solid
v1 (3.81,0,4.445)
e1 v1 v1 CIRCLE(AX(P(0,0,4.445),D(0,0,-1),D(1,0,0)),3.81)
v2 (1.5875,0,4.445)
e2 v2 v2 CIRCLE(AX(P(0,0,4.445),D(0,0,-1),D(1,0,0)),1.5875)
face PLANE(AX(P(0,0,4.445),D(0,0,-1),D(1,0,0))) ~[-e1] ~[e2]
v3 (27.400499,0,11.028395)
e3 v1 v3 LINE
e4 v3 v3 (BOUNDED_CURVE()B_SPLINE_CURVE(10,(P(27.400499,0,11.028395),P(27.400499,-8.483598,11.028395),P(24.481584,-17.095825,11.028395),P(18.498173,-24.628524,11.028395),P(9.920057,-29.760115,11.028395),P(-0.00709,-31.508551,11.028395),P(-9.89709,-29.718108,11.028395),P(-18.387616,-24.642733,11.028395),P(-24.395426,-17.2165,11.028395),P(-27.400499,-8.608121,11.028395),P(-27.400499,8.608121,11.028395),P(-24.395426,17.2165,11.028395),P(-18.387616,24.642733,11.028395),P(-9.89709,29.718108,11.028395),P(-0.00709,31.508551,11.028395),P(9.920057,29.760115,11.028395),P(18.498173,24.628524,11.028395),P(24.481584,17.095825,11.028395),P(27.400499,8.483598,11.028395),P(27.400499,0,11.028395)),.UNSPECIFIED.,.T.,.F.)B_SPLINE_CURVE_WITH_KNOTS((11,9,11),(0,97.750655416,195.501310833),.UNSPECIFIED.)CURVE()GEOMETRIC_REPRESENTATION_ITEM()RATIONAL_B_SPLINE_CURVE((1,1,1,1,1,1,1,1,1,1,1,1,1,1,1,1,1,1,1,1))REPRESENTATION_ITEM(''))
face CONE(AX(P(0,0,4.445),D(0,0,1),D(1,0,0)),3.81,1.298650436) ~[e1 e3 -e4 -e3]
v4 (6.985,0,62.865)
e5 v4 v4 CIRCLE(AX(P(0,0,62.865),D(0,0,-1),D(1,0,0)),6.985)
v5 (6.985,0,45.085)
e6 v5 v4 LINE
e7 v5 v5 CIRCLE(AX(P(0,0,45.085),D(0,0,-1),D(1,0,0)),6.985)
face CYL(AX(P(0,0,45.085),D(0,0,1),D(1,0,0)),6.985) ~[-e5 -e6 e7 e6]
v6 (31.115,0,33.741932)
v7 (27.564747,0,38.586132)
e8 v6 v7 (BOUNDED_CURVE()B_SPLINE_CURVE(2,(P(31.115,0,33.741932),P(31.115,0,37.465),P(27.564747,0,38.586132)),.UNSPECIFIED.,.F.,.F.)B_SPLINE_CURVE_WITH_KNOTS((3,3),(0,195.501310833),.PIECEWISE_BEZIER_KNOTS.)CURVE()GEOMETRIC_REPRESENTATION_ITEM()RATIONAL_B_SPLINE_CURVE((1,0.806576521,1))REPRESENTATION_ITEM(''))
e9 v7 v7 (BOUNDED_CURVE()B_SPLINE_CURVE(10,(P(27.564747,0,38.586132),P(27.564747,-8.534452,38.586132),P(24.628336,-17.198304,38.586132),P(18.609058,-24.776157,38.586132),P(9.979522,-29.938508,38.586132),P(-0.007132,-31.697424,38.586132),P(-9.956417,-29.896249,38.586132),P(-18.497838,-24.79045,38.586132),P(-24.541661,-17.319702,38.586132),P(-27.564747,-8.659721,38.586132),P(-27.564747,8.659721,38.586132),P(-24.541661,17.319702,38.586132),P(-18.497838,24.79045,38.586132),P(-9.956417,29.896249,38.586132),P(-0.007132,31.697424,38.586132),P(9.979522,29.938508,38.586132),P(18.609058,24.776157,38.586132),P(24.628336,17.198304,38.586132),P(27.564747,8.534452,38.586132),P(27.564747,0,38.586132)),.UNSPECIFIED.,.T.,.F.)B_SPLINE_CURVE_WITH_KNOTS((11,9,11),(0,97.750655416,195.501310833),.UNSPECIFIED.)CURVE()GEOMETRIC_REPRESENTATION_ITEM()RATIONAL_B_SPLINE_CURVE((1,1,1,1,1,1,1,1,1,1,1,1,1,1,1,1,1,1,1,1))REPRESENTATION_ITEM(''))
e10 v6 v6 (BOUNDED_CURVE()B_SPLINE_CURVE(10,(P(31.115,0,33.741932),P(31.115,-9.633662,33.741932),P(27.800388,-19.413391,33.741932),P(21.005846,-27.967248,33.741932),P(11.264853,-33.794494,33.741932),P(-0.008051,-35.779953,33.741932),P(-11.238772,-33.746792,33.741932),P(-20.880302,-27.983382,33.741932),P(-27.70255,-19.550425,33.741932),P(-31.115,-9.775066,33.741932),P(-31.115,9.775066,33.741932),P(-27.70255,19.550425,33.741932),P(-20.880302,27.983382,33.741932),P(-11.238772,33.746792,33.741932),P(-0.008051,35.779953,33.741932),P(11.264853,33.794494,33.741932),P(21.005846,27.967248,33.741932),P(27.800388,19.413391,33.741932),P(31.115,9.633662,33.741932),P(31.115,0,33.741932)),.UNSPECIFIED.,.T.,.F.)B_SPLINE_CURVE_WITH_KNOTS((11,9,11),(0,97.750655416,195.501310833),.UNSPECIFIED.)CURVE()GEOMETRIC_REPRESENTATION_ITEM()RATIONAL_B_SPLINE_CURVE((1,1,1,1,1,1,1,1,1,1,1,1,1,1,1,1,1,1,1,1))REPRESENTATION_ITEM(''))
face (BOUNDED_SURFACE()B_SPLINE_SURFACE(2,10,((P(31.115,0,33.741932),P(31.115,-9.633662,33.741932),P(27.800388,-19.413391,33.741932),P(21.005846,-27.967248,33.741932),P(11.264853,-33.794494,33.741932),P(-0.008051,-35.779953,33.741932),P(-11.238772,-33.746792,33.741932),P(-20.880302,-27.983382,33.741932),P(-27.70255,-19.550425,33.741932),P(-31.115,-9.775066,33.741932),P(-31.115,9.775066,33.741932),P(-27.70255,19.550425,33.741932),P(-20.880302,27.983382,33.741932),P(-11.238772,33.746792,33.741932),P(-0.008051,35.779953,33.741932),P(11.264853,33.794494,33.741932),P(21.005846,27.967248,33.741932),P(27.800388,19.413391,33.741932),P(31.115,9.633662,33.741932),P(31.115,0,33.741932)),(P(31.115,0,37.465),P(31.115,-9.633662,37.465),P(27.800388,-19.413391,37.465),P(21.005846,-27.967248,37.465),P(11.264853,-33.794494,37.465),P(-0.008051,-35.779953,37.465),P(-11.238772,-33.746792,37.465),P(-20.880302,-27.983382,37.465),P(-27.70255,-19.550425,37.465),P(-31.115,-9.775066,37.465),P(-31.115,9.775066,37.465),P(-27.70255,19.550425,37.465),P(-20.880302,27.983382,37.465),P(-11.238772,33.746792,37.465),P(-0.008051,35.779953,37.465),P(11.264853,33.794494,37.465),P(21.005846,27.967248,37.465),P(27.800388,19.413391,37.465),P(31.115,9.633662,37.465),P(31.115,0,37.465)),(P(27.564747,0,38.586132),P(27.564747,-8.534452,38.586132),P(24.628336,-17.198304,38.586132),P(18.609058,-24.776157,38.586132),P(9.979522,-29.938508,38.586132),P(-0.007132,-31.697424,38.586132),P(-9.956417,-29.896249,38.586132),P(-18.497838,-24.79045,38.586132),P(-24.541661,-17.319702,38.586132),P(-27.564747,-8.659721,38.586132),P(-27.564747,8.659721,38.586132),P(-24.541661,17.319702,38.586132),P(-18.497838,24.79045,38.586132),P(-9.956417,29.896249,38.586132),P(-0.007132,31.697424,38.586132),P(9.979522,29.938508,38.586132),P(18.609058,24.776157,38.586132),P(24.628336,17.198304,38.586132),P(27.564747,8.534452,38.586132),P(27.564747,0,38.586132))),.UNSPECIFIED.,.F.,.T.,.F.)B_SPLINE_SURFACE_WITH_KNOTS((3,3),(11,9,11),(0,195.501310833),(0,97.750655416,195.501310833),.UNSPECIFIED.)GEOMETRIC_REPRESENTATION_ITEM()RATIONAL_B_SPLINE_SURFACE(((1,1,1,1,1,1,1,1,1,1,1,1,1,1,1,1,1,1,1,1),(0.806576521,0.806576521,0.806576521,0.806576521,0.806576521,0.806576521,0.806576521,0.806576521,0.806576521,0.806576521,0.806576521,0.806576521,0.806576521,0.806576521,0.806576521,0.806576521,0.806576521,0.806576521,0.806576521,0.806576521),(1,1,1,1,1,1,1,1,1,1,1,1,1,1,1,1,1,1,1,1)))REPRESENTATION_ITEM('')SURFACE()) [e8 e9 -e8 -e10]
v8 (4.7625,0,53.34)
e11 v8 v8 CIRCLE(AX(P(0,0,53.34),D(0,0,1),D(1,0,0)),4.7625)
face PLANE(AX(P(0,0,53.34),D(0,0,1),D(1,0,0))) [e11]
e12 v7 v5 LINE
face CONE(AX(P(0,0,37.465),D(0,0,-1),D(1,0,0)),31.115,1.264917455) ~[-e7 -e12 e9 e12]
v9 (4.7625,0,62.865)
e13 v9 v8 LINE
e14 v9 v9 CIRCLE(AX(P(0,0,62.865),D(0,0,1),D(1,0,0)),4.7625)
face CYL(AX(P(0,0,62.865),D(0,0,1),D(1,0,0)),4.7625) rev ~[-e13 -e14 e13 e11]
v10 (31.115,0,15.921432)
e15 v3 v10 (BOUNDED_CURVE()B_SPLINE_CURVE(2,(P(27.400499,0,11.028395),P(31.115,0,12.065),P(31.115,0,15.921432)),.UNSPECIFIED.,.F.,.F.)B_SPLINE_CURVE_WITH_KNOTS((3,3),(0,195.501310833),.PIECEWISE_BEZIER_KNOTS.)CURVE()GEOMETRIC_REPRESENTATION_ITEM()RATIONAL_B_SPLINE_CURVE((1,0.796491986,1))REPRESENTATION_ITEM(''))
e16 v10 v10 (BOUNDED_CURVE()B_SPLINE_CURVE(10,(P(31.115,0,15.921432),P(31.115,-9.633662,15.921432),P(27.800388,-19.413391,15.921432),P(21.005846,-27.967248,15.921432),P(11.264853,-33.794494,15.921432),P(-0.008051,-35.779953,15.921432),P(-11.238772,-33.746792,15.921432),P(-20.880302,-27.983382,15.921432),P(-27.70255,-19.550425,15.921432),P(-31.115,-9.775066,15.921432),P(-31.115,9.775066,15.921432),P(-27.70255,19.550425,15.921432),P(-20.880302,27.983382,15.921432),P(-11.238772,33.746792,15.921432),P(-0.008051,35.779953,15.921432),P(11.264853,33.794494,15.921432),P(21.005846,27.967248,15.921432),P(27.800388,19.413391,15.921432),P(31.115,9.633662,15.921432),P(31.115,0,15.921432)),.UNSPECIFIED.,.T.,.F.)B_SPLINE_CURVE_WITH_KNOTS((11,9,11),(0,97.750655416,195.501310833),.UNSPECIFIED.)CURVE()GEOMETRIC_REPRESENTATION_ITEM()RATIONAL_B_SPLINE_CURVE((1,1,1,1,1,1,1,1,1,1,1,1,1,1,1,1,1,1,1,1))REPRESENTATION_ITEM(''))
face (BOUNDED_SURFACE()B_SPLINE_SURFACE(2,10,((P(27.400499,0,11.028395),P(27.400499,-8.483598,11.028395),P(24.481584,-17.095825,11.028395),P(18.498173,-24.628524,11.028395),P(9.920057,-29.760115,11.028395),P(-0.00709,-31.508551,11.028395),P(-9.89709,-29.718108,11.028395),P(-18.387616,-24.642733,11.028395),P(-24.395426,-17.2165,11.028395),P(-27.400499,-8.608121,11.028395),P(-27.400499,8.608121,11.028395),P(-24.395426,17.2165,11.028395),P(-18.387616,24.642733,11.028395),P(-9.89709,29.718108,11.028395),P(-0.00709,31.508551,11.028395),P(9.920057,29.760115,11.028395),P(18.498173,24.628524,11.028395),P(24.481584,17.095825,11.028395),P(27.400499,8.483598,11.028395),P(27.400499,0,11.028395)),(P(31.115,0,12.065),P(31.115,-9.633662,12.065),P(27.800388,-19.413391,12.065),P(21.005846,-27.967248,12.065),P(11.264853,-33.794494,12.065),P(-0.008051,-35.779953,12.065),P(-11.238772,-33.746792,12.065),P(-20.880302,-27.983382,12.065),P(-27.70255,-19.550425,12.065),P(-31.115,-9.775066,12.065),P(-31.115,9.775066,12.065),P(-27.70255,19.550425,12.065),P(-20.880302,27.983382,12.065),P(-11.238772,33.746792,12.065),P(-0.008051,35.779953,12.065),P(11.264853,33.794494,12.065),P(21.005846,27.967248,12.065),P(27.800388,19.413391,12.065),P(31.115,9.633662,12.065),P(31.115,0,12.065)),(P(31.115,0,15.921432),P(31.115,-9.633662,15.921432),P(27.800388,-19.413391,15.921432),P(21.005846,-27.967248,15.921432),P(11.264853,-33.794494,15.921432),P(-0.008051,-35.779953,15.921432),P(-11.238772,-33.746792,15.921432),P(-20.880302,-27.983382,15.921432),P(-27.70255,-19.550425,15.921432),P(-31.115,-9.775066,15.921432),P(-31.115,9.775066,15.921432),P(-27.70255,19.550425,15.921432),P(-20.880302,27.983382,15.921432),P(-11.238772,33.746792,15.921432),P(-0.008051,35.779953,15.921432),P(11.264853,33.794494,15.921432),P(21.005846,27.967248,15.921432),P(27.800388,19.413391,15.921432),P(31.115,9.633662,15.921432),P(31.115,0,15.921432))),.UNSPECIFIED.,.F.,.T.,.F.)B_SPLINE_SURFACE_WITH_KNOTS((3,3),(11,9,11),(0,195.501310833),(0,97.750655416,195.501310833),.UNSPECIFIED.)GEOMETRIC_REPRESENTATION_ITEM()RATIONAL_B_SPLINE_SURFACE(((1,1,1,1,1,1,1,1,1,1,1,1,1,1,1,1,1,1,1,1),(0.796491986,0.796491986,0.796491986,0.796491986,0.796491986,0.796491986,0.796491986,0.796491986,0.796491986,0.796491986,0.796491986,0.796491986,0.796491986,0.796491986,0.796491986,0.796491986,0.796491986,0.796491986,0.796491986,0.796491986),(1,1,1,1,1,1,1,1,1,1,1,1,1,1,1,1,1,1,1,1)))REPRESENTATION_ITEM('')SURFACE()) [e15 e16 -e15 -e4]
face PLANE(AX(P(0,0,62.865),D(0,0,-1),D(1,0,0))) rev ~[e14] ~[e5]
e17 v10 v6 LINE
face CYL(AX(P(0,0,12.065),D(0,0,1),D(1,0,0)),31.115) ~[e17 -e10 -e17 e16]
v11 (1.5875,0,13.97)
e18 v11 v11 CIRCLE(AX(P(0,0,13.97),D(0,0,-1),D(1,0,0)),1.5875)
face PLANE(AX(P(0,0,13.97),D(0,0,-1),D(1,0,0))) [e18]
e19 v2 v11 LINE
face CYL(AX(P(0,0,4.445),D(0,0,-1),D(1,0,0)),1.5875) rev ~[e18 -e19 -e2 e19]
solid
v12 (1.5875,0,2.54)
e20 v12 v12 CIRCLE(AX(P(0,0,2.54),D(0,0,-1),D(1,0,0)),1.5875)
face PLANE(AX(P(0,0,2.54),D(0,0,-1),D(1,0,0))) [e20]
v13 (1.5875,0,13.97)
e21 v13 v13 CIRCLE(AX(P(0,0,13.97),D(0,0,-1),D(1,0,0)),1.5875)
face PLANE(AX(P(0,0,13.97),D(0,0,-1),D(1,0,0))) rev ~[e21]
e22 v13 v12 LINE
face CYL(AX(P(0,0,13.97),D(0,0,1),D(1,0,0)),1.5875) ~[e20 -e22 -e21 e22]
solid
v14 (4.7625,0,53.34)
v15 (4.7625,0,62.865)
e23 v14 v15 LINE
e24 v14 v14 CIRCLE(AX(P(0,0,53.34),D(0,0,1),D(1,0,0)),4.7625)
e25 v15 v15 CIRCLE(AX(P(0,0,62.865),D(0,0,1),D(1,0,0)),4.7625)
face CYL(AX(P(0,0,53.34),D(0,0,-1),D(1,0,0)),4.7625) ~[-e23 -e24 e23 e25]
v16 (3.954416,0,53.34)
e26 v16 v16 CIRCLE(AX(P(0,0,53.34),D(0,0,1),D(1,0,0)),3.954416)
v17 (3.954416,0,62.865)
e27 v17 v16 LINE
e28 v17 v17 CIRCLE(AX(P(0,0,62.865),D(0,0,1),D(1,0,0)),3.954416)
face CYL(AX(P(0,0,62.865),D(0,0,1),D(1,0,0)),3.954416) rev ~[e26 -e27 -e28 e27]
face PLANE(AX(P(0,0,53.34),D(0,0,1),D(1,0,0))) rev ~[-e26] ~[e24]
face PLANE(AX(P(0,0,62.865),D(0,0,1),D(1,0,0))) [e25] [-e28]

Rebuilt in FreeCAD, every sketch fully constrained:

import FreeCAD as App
import Part
import Sketcher
Q = App.Units.Quantity


def edges_at(feature, points):
    """Names of the edges that pass closest to the given points."""
    edges = feature.Shape.Edges
    near = lambda p: min(range(len(edges)), key=lambda i: edges[i].distToShape(Part.Vertex(*p))[0])
    return sorted({f"Edge{near(p) + 1}" for p in points})


def add_polygon(sketch, points):
    """Adds a closed chain of lines whose ends are joined by coincident constraints."""
    first, n = sketch.GeometryCount, len(points)
    for a, b in zip(points, points[1:] + points[:1]):
        sketch.addGeometry(Part.LineSegment(App.Vector(*a, 0), App.Vector(*b, 0)), False)
    for i in range(n):
        sketch.addConstraint(Sketcher.Constraint("Coincident", first + i, 2, first + (i + 1) % n, 1))

doc = App.newDocument("Part")
body = doc.addObject("PartDesign::Body", "Body")

sketch1 = body.newObject("Sketcher::SketchObject", "Sketch")
sketch1.AttachmentSupport = (doc.getObject("XZ_Plane"), [""])
sketch1.MapMode = "FlatFace"
add_polygon(sketch1, [(3.8, 4.4), (31.1, 12.1), (31.1, 37.5), (7, 45.1), (7, 62.9), (0, 62.9), (0, 4.4)])
sketch1.addConstraint([
    Sketcher.Constraint("Vertical", 1),
    Sketcher.Constraint("Vertical", 3),
    Sketcher.Constraint("Horizontal", 4),
    Sketcher.Constraint("Vertical", 5),
    Sketcher.Constraint("Horizontal", 6),
    Sketcher.Constraint("PointOnObject", 4, 2, -2),
    Sketcher.Constraint("DistanceY", 1, 1, 1, 2, Q("1 in")),
    Sketcher.Constraint("DistanceY", 3, 1, 3, 2, Q("0.7 in")),
    Sketcher.Constraint("DistanceY", 5, 2, 5, 1, Q("2.3 in")),
    Sketcher.Constraint("DistanceY", 1, 2, 3, 2, Q("1 in")),
    Sketcher.Constraint("DistanceX", 6, 1, 6, 2, Q("0.15 in")),
    Sketcher.Constraint("DistanceX", 4, 2, 4, 1, Q("0.275 in")),
    Sketcher.Constraint("DistanceX", 2, 2, 1, 2, Q("0.95 in")),
    Sketcher.Constraint("DistanceY", -1, 1, 0, 2, Q("0.475 in")),
])
revolution = body.newObject("PartDesign::Revolution", "Revolution")
revolution.Profile = sketch1
revolution.ReferenceAxis = (sketch1, ["V_Axis"])
revolution.Angle = 360

sketch2 = body.newObject("Sketcher::SketchObject", "Sketch001")
sketch2.AttachmentSupport = (doc.getObject("XY_Plane"), [""])
sketch2.MapMode = "FlatFace"
sketch2.AttachmentOffset = App.Placement(App.Vector(0, 0, 2.475 * 25.4), App.Rotation())
sketch2.addGeometry(Part.Circle(App.Vector(0, 0, 0), App.Vector(0, 0, 1), 4.8), False)
sketch2.addConstraint([
    Sketcher.Constraint("Coincident", 0, 3, -1, 1),
    Sketcher.Constraint("Diameter", 0, Q("0.375 in")),
])
pocket1 = body.newObject("PartDesign::Pocket", "Pocket")
pocket1.Profile = sketch2
pocket1.Length = Q("0.375 in")

sketch3 = body.newObject("Sketcher::SketchObject", "Sketch002")
sketch3.AttachmentSupport = (doc.getObject("XY_Plane"), [""])
sketch3.MapMode = "FlatFace"
sketch3.AttachmentOffset = App.Placement(App.Vector(0, 0, 0.175 * 25.4), App.Rotation())
sketch3.addGeometry(Part.Circle(App.Vector(0, 0, 0), App.Vector(0, 0, 1), 1.6), False)
sketch3.addConstraint([
    Sketcher.Constraint("Coincident", 0, 3, -1, 1),
    Sketcher.Constraint("Diameter", 0, Q("0.125 in")),
])
pocket2 = body.newObject("PartDesign::Pocket", "Pocket001")
pocket2.Profile = sketch3
pocket2.Length = Q("0.375 in")
pocket2.Reversed = True
doc.recompute()

fillet = body.newObject("PartDesign::Fillet", "Fillet")
fillet.Base = (pocket2, edges_at(pocket2, [(-31.115, 0, 12.065), (-31.115, 0, 37.465), (31.115, 0, 24.765)]))
fillet.Radius = Q("0.2 in")
body2 = doc.addObject("PartDesign::Body", "Body001")

sketch4 = body2.newObject("Sketcher::SketchObject", "Sketch003")
sketch4.AttachmentSupport = (doc.getObject("XY_Plane001"), [""])
sketch4.MapMode = "FlatFace"
sketch4.AttachmentOffset = App.Placement(App.Vector(0, 0, 2.1 * 25.4), App.Rotation())
sketch4.addGeometry(Part.Circle(App.Vector(0, 0, 0), App.Vector(0, 0, 1), 4.8), False)
sketch4.addConstraint([
    Sketcher.Constraint("Coincident", 0, 3, -1, 1),
    Sketcher.Constraint("Diameter", 0, Q("0.375 in")),
])
pad1 = body2.newObject("PartDesign::Pad", "Pad")
pad1.Profile = sketch4
pad1.Length = Q("0.375 in")

sketch5 = body2.newObject("Sketcher::SketchObject", "Sketch004")
sketch5.AttachmentSupport = (doc.getObject("XY_Plane001"), [""])
sketch5.MapMode = "FlatFace"
sketch5.AttachmentOffset = App.Placement(App.Vector(0, 0, 2.475 * 25.4), App.Rotation())
sketch5.addGeometry(Part.Circle(App.Vector(0, 0, 0), App.Vector(0, 0, 1), 4), False)
sketch5.addConstraint([
    Sketcher.Constraint("Coincident", 0, 3, -1, 1),
    Sketcher.Constraint("Diameter", 0, 7.908832),
])
pocket3 = body2.newObject("PartDesign::Pocket", "Pocket002")
pocket3.Profile = sketch5
pocket3.Length = Q("0.375 in")
body3 = doc.addObject("PartDesign::Body", "Body002")

sketch6 = body3.newObject("Sketcher::SketchObject", "Sketch005")
sketch6.AttachmentSupport = (doc.getObject("XY_Plane002"), [""])
sketch6.MapMode = "FlatFace"
sketch6.AttachmentOffset = App.Placement(App.Vector(0, 0, 0.55 * 25.4), App.Rotation())
sketch6.addGeometry(Part.Circle(App.Vector(0, 0, 0), App.Vector(0, 0, 1), 1.6), False)
sketch6.addConstraint([
    Sketcher.Constraint("Coincident", 0, 3, -1, 1),
    Sketcher.Constraint("Diameter", 0, Q("0.125 in")),
])
pad2 = body3.newObject("PartDesign::Pad", "Pad001")
pad2.Profile = sketch6
pad2.Length = Q("0.45 in")
pad2.Reversed = True

doc.recompute()
